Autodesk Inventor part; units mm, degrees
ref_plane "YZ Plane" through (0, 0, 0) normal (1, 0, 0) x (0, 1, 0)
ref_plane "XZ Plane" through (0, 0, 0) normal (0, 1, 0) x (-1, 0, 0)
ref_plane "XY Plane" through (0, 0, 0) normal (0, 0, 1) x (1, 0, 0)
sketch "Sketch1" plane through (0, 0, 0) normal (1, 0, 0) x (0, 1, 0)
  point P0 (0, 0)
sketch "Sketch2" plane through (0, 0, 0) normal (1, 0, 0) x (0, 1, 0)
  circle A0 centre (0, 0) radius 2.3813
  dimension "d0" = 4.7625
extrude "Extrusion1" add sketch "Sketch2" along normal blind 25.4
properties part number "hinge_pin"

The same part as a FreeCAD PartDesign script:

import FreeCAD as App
import Part
import Sketcher
Q = App.Units.Quantity

doc = App.newDocument("Part")
body = doc.addObject("PartDesign::Body", "Body")

# Sketch on YZ plane
sketch1 = body.newObject("Sketcher::SketchObject", "Sketch")
sketch1.AttachmentSupport = (doc.getObject("YZ_Plane"), [""])
sketch1.MapMode = "FlatFace"
sketch1.addGeometry(Part.Circle(App.Vector(0, 0, 0), App.Vector(0, 0, 1), 2.4), False)
sketch1.addConstraint(Sketcher.Constraint("Coincident", 0, 3, -1, 1))
sketch1.addConstraint(Sketcher.Constraint("Diameter", 0, Q("0.1875 in")))
pad1 = body.newObject("PartDesign::Pad", "Pad")
pad1.Profile = sketch1
pad1.Length = Q("1 in")

doc.recompute()
